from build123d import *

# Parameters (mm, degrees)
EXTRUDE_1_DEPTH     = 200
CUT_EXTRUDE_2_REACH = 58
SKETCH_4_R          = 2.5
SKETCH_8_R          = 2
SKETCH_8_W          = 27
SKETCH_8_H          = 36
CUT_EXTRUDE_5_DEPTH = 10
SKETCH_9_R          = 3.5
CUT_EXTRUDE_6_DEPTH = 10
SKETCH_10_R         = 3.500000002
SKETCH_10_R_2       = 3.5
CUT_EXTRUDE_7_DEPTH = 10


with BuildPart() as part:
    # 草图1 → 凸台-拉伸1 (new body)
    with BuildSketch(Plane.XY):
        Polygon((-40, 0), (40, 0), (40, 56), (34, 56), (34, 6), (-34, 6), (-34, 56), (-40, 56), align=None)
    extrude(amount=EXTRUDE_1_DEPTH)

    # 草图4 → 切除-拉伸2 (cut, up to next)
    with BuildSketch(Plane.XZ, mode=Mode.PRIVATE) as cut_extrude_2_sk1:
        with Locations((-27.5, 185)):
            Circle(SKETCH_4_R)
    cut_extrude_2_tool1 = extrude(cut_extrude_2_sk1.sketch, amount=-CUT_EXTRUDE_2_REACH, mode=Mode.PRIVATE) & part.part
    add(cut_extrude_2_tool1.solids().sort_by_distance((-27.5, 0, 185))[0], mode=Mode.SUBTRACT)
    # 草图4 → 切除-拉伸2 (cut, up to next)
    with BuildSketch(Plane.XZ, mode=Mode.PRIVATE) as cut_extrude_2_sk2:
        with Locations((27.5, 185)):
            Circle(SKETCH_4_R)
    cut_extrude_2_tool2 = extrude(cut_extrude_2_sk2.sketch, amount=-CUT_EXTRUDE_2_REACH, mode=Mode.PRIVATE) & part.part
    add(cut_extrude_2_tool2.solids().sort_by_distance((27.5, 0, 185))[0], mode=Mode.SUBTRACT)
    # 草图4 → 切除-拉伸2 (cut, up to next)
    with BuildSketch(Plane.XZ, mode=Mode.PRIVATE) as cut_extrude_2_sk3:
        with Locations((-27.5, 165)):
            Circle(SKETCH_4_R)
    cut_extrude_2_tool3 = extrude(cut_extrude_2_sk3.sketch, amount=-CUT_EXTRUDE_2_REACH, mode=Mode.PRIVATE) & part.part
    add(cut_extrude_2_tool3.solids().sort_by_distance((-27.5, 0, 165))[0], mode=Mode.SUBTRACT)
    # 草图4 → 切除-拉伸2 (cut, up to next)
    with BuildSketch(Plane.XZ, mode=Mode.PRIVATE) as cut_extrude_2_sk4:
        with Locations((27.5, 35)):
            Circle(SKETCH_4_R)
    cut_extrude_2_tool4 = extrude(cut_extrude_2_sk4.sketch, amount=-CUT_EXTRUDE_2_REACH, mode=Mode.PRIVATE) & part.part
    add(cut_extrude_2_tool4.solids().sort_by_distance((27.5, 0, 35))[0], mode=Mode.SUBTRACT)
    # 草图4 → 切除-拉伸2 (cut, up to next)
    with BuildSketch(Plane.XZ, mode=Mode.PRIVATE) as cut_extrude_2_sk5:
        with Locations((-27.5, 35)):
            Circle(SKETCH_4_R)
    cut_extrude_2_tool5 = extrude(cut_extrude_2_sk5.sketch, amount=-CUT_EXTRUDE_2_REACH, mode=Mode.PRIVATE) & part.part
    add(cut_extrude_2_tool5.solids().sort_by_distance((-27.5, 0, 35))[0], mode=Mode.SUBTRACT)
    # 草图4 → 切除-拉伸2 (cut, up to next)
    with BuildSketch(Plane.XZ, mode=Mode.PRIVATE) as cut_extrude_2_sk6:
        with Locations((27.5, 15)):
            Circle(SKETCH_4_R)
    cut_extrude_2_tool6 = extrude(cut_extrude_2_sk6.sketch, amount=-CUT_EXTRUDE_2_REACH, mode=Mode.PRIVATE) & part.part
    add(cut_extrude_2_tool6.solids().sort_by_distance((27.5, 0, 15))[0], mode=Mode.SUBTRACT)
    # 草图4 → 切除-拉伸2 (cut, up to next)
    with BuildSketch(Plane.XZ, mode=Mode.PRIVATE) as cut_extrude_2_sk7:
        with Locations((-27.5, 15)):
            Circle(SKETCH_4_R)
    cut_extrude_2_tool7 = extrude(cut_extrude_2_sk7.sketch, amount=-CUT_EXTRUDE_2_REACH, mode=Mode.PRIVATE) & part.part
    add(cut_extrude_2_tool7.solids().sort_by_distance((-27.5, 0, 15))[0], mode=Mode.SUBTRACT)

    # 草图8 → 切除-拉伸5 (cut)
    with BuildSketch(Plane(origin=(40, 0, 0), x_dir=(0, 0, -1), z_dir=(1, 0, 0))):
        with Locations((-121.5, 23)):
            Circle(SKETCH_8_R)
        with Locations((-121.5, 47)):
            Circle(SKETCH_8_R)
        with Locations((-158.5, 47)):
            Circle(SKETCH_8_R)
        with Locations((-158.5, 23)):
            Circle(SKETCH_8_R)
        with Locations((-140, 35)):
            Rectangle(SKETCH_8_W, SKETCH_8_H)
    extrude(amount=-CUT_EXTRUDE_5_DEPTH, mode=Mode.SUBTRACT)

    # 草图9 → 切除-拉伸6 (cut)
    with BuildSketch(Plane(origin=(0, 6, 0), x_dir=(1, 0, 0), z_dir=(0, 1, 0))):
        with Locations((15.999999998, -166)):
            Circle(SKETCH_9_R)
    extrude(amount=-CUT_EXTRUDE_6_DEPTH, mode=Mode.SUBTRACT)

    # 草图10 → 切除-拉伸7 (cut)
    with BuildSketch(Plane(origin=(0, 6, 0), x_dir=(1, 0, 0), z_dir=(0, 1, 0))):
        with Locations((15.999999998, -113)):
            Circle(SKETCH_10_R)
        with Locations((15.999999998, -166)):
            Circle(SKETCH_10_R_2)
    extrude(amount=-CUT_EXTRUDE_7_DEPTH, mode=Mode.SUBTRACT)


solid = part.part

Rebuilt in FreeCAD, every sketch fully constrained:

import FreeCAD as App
import Part
import Sketcher
from FreeCAD import Vector


def add_polygon(sketch, points):
    """Adds a closed chain of lines whose ends are joined by coincident constraints."""
    first, n = sketch.GeometryCount, len(points)
    for a, b in zip(points, points[1:] + points[:1]):
        sketch.addGeometry(Part.LineSegment(App.Vector(*a, 0), App.Vector(*b, 0)), False)
    for i in range(n):
        sketch.addConstraint(Sketcher.Constraint("Coincident", first + i, 2, first + (i + 1) % n, 1))

doc = App.newDocument("Part")
body = doc.addObject("PartDesign::Body", "Body")

sketch1 = body.newObject("Sketcher::SketchObject", "Sketch")
sketch1.AttachmentSupport = (doc.getObject("XY_Plane"), [""])
sketch1.MapMode = "FlatFace"
add_polygon(sketch1, [(-40, 0), (40, 0), (40, 56), (34, 56), (34, 6), (-34, 6), (-34, 56), (-40, 56)])
sketch1.addConstraint([
    Sketcher.Constraint("Horizontal", 0),
    Sketcher.Constraint("Vertical", 1),
    Sketcher.Constraint("Horizontal", 2),
    Sketcher.Constraint("Vertical", 3),
    Sketcher.Constraint("Horizontal", 4),
    Sketcher.Constraint("Vertical", 5),
    Sketcher.Constraint("Horizontal", 6),
    Sketcher.Constraint("Vertical", 7),
    Sketcher.Constraint("Symmetric", 0, 2, 7, 2, -1, 1),
    Sketcher.Constraint("Symmetric", 2, 2, 5, 2, -2),
    Sketcher.Constraint("DistanceX", 0, 1, 0, 2, 80.0),
    Sketcher.Constraint("DistanceX", 2, 2, 2, 1, 6.0),
    Sketcher.Constraint("DistanceY", 1, 1, 1, 2, 56.0),
    Sketcher.Constraint("DistanceY", 3, 2, 3, 1, 50.0),
])
pad1 = body.newObject("PartDesign::Pad", "Pad")
pad1.Profile = sketch1
pad1.Length = 200

sketch2 = body.newObject("Sketcher::SketchObject", "Sketch001")
sketch2.AttachmentSupport = (doc.getObject("XZ_Plane"), [""])
sketch2.MapMode = "FlatFace"
sketch2.addGeometry(Part.Circle(Vector(-27.5, 185, 0), Vector(0, 0, 1), 2.5), False)
sketch2.addConstraint([
    Sketcher.Constraint("Diameter", 0, 5.0),
    Sketcher.Constraint("DistanceY", -1, 1, 0, 3, 185.0),
    Sketcher.Constraint("DistanceX", 0, 3, -1, 1, 27.5),
])
pocket1 = body.newObject("PartDesign::Pocket", "Pocket")
pocket1.Profile = sketch2
pocket1.Type = "UpToFirst"

sketch3 = body.newObject("Sketcher::SketchObject", "Sketch002")
sketch3.AttachmentSupport = (doc.getObject("XZ_Plane"), [""])
sketch3.MapMode = "FlatFace"
sketch3.addGeometry(Part.Circle(Vector(27.5, 185, 0), Vector(0, 0, 1), 2.5), False)
sketch3.addConstraint([
    Sketcher.Constraint("Diameter", 0, 5.0),
    Sketcher.Constraint("DistanceY", -1, 1, 0, 3, 185.0),
    Sketcher.Constraint("DistanceX", -1, 1, 0, 3, 27.5),
])
pocket2 = body.newObject("PartDesign::Pocket", "Pocket001")
pocket2.Profile = sketch3
pocket2.Type = "UpToFirst"

sketch4 = body.newObject("Sketcher::SketchObject", "Sketch003")
sketch4.AttachmentSupport = (doc.getObject("XZ_Plane"), [""])
sketch4.MapMode = "FlatFace"
sketch4.addGeometry(Part.Circle(Vector(-27.5, 165, 0), Vector(0, 0, 1), 2.5), False)
sketch4.addConstraint([
    Sketcher.Constraint("Diameter", 0, 5.0),
    Sketcher.Constraint("DistanceY", -1, 1, 0, 3, 165.0),
    Sketcher.Constraint("DistanceX", 0, 3, -1, 1, 27.5),
])
pocket3 = body.newObject("PartDesign::Pocket", "Pocket002")
pocket3.Profile = sketch4
pocket3.Type = "UpToFirst"

sketch5 = body.newObject("Sketcher::SketchObject", "Sketch004")
sketch5.AttachmentSupport = (doc.getObject("XZ_Plane"), [""])
sketch5.MapMode = "FlatFace"
sketch5.addGeometry(Part.Circle(Vector(27.5, 35, 0), Vector(0, 0, 1), 2.5), False)
sketch5.addConstraint([
    Sketcher.Constraint("Diameter", 0, 5.0),
    Sketcher.Constraint("DistanceY", -1, 1, 0, 3, 35.0),
    Sketcher.Constraint("DistanceX", -1, 1, 0, 3, 27.5),
])
pocket4 = body.newObject("PartDesign::Pocket", "Pocket003")
pocket4.Profile = sketch5
pocket4.Type = "UpToFirst"

sketch6 = body.newObject("Sketcher::SketchObject", "Sketch005")
sketch6.AttachmentSupport = (doc.getObject("XZ_Plane"), [""])
sketch6.MapMode = "FlatFace"
sketch6.addGeometry(Part.Circle(Vector(-27.5, 35, 0), Vector(0, 0, 1), 2.5), False)
sketch6.addConstraint([
    Sketcher.Constraint("Diameter", 0, 5.0),
    Sketcher.Constraint("DistanceY", -1, 1, 0, 3, 35.0),
    Sketcher.Constraint("DistanceX", 0, 3, -1, 1, 27.5),
])
pocket5 = body.newObject("PartDesign::Pocket", "Pocket004")
pocket5.Profile = sketch6
pocket5.Type = "UpToFirst"

sketch7 = body.newObject("Sketcher::SketchObject", "Sketch006")
sketch7.AttachmentSupport = (doc.getObject("XZ_Plane"), [""])
sketch7.MapMode = "FlatFace"
sketch7.addGeometry(Part.Circle(Vector(27.5, 15, 0), Vector(0, 0, 1), 2.5), False)
sketch7.addConstraint([
    Sketcher.Constraint("Diameter", 0, 5.0),
    Sketcher.Constraint("DistanceY", -1, 1, 0, 3, 15.0),
    Sketcher.Constraint("DistanceX", -1, 1, 0, 3, 27.5),
])
pocket6 = body.newObject("PartDesign::Pocket", "Pocket005")
pocket6.Profile = sketch7
pocket6.Type = "UpToFirst"

sketch8 = body.newObject("Sketcher::SketchObject", "Sketch007")
sketch8.AttachmentSupport = (doc.getObject("XZ_Plane"), [""])
sketch8.MapMode = "FlatFace"
sketch8.addGeometry(Part.Circle(Vector(-27.5, 15, 0), Vector(0, 0, 1), 2.5), False)
sketch8.addConstraint([
    Sketcher.Constraint("Diameter", 0, 5.0),
    Sketcher.Constraint("DistanceY", -1, 1, 0, 3, 15.0),
    Sketcher.Constraint("DistanceX", 0, 3, -1, 1, 27.5),
])
pocket7 = body.newObject("PartDesign::Pocket", "Pocket006")
pocket7.Profile = sketch8
pocket7.Type = "UpToFirst"

sketch9 = body.newObject("Sketcher::SketchObject", "Sketch008")
sketch9.AttachmentSupport = (doc.getObject("YZ_Plane"), [""])
sketch9.MapMode = "FlatFace"
sketch9.AttachmentOffset = App.Placement(Vector(0, 0, 40), App.Rotation())
sketch9.addGeometry(Part.Circle(Vector(23, 121.5, 0), Vector(0, 0, 1), 2), False)
sketch9.addGeometry(Part.Circle(Vector(47, 121.5, 0), Vector(0, 0, 1), 2), False)
sketch9.addGeometry(Part.Circle(Vector(47, 158.5, 0), Vector(0, 0, 1), 2), False)
sketch9.addGeometry(Part.Circle(Vector(23, 158.5, 0), Vector(0, 0, 1), 2), False)
add_polygon(sketch9, [(53, 153.5), (17, 153.5), (17, 126.5), (53, 126.5)])
sketch9.addConstraint([
    Sketcher.Constraint("Horizontal", 4),
    Sketcher.Constraint("Vertical", 5),
    Sketcher.Constraint("Horizontal", 6),
    Sketcher.Constraint("Vertical", 7),
    Sketcher.Constraint("Equal", 0, 1),
    Sketcher.Constraint("Equal", 1, 2),
    Sketcher.Constraint("Equal", 2, 3),
    Sketcher.Constraint("Horizontal", 0, 3, 1, 3),
    Sketcher.Constraint("Horizontal", 2, 3, 3, 3),
    Sketcher.Constraint("Vertical", 1, 3, 2, 3),
    Sketcher.Constraint("Vertical", 0, 3, 3, 3),
    Sketcher.Constraint("Diameter", 0, 4.0),
    Sketcher.Constraint("DistanceX", 4, 2, 4, 1, 36.0),
    Sketcher.Constraint("DistanceY", 5, 2, 5, 1, 27.0),
    Sketcher.Constraint("DistanceX", -1, 1, 0, 3, 23.0),
    Sketcher.Constraint("DistanceX", -1, 1, 1, 3, 47.0),
    Sketcher.Constraint("DistanceX", -1, 1, 4, 2, 17.0),
    Sketcher.Constraint("DistanceY", 1, 3, 2, 3, 37.0),
    Sketcher.Constraint("DistanceY", 4, 2, 3, 3, 5.0),
    Sketcher.Constraint("DistanceY", -1, 1, 0, 3, 121.5),
])
pocket8 = body.newObject("PartDesign::Pocket", "Pocket007")
pocket8.Profile = sketch9
pocket8.Length = 10

sketch10 = body.newObject("Sketcher::SketchObject", "Sketch009")
sketch10.AttachmentSupport = (doc.getObject("XZ_Plane"), [""])
sketch10.MapMode = "FlatFace"
sketch10.AttachmentOffset = App.Placement(Vector(0, 0, -6), App.Rotation())
sketch10.addGeometry(Part.Circle(Vector(16, 166, 0), Vector(0, 0, 1), 3.5), False)
sketch10.addConstraint([
    Sketcher.Constraint("Diameter", 0, 7.0),
    Sketcher.Constraint("DistanceX", -1, 1, 0, 3, 16.0),
    Sketcher.Constraint("DistanceY", -1, 1, 0, 3, 166.0),
])
pocket9 = body.newObject("PartDesign::Pocket", "Pocket008")
pocket9.Profile = sketch10
pocket9.Length = 10
pocket9.Reversed = True

sketch11 = body.newObject("Sketcher::SketchObject", "Sketch010")
sketch11.AttachmentSupport = (doc.getObject("XZ_Plane"), [""])
sketch11.MapMode = "FlatFace"
sketch11.AttachmentOffset = App.Placement(Vector(0, 0, -6), App.Rotation())
sketch11.addGeometry([
    Part.Circle(Vector(16, 113, 0), Vector(0, 0, 1), 3.5),
    Part.Circle(Vector(16, 166, 0), Vector(0, 0, 1), 3.5),
], False)
sketch11.addConstraint([
    Sketcher.Constraint("Equal", 0, 1),
    Sketcher.Constraint("Vertical", 0, 3, 1, 3),
    Sketcher.Constraint("Diameter", 0, 7.0),
    Sketcher.Constraint("DistanceX", -1, 1, 0, 3, 16.0),
    Sketcher.Constraint("DistanceY", -1, 1, 0, 3, 113.0),
    Sketcher.Constraint("DistanceY", -1, 1, 1, 3, 166.0),
])
pocket10 = body.newObject("PartDesign::Pocket", "Pocket009")
pocket10.Profile = sketch11
pocket10.Length = 10
pocket10.Reversed = True

doc.recompute()
